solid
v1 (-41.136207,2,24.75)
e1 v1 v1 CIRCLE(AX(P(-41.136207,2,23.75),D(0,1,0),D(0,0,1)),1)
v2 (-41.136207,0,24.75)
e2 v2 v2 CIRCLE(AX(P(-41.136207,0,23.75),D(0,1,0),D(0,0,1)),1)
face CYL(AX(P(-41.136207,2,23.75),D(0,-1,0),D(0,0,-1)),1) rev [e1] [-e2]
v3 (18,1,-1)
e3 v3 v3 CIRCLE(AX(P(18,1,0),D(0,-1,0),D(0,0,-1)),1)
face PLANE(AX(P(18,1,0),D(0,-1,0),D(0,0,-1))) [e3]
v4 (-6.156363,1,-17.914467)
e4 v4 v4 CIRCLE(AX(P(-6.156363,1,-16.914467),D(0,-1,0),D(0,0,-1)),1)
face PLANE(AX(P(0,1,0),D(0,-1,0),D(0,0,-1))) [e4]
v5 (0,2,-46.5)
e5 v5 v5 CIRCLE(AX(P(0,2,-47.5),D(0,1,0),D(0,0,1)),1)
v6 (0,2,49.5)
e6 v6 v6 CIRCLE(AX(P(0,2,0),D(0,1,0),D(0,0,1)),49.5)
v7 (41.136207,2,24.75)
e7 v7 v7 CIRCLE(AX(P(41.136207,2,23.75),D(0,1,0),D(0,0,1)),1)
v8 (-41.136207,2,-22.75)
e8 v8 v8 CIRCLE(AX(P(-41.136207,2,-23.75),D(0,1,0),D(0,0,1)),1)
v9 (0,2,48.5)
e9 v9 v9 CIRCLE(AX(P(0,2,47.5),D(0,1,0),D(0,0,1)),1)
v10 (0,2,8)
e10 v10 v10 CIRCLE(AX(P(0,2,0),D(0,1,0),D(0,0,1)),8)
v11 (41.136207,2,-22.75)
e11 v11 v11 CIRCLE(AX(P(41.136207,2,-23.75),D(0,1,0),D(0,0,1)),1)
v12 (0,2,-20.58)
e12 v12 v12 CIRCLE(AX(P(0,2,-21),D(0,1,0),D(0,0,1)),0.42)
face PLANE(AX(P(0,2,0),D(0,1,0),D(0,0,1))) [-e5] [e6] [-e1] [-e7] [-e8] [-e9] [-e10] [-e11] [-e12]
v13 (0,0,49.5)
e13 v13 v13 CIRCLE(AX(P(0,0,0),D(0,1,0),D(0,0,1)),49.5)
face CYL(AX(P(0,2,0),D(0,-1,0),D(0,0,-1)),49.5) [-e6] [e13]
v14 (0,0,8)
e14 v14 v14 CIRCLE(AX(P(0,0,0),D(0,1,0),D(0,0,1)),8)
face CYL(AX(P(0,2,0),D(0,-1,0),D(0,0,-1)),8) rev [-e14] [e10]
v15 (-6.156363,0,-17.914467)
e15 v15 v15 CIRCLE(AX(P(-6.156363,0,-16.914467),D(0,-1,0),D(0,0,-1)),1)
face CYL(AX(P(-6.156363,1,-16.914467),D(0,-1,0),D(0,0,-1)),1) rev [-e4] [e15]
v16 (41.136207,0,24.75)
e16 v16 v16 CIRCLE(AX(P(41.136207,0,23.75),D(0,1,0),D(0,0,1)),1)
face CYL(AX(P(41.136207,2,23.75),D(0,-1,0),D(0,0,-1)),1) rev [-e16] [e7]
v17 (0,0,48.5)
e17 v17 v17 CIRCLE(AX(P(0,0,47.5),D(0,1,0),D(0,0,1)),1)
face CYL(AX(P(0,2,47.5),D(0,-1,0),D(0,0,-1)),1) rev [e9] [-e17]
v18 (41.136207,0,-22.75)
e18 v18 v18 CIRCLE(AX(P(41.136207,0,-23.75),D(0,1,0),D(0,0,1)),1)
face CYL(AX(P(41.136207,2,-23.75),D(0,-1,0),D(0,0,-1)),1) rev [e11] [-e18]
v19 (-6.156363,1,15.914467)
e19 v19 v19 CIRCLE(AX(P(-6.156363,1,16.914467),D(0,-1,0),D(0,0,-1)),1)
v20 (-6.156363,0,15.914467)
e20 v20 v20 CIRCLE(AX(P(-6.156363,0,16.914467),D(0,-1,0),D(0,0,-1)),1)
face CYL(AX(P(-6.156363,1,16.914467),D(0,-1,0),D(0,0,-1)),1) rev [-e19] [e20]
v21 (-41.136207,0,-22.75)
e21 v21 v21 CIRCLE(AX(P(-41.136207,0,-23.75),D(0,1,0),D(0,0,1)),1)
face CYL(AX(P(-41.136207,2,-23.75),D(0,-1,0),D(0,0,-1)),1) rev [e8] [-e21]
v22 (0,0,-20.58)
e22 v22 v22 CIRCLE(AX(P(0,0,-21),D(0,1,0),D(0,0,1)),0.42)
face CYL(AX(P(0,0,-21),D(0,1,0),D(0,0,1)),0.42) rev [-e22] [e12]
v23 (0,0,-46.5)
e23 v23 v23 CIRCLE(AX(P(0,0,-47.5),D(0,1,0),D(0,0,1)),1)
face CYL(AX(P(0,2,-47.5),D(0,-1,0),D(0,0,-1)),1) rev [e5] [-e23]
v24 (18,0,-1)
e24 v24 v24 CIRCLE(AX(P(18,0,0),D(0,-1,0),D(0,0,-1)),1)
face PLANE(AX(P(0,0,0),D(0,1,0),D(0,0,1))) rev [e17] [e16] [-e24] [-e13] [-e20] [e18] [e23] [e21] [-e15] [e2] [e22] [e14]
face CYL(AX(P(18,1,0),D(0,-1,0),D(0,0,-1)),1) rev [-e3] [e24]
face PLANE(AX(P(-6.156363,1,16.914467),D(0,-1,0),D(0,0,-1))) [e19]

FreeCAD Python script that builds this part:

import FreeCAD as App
import Part
import Sketcher

V = App.Vector

doc = App.newDocument("Part")
body = doc.addObject("PartDesign::Body", "Body")

sketch1 = doc.addObject("Sketcher::SketchObject", "Sketch")
body.addObject(sketch1)
sketch1.AttachmentSupport = (doc.XZ_Plane, [""])
sketch1.MapMode = "FlatFace"
sketch1.addGeometry(Part.Circle(V(0, 0, 0), V(0, 0, 1), 49.5), False)
sketch1.addGeometry(Part.Circle(V(-41.1, -23.8, 0), V(0, 0, 1), 1), False)
sketch1.addGeometry(Part.Circle(V(0, -47.5, 0), V(0, 0, 1), 1), False)
sketch1.addGeometry(Part.Circle(V(-41.1, 23.8, 0), V(0, 0, 1), 1), False)
sketch1.addGeometry(Part.Circle(V(0, 0, 0), V(0, 0, 1), 8), False)
sketch1.addGeometry(Part.Circle(V(41.1, -23.8, 0), V(0, 0, 1), 1), False)
sketch1.addGeometry(Part.Circle(V(0, 47.5, 0), V(0, 0, 1), 1), False)
sketch1.addGeometry(Part.Circle(V(41.1, 23.8, 0), V(0, 0, 1), 1), False)
sketch1.addConstraint(Sketcher.Constraint("Coincident", 0, 3, -1, 1))
sketch1.addConstraint(Sketcher.Constraint("Coincident", 4, 3, -1, 1))
sketch1.addConstraint(Sketcher.Constraint("Equal", 1, 2))
sketch1.addConstraint(Sketcher.Constraint("Equal", 2, 3))
sketch1.addConstraint(Sketcher.Constraint("Equal", 3, 5))
sketch1.addConstraint(Sketcher.Constraint("Equal", 5, 6))
sketch1.addConstraint(Sketcher.Constraint("Equal", 6, 7))
sketch1.addConstraint(Sketcher.Constraint("Symmetric", 3, 3, 5, 3, -1, 1))
sketch1.addConstraint(Sketcher.Constraint("Symmetric", 2, 3, 6, 3, -1, 1))
sketch1.addConstraint(Sketcher.Constraint("Symmetric", 1, 3, 7, 3, -1, 1))
sketch1.addConstraint(Sketcher.Constraint("Symmetric", 1, 3, 5, 3, -2))
sketch1.addConstraint(Sketcher.Constraint("PointOnObject", 2, 3, -2))
sketch1.addConstraint(Sketcher.Constraint("Diameter", 0, 99.0))
sketch1.addConstraint(Sketcher.Constraint("Diameter", 1, 2.0))
sketch1.addConstraint(Sketcher.Constraint("Diameter", 4, 16.0))
sketch1.addConstraint(Sketcher.Constraint("DistanceY", 2, 3, -1, 1, 47.5))
sketch1.addConstraint(Sketcher.Constraint("DistanceY", 1, 3, 3, 3, 47.5))
sketch1.addConstraint(Sketcher.Constraint("DistanceX", 1, 3, -1, 1, 41.136207))
pad1 = doc.addObject("PartDesign::Pad", "Pad")
body.addObject(pad1)
pad1.Profile = sketch1
pad1.Length = 2
pad1.Reversed = True

sketch2 = doc.addObject("Sketcher::SketchObject", "Sketch001")
body.addObject(sketch2)
sketch2.AttachmentSupport = (doc.XZ_Plane, [""])
sketch2.MapMode = "FlatFace"
sketch2.AttachmentOffset = App.Placement(V(0, 0, -2), App.Rotation())
sketch2.addGeometry(Part.Circle(V(0, -21, 0), V(0, 0, 1), 0.42), False)
sketch2.addConstraint(Sketcher.Constraint("PointOnObject", 0, 3, -2))
sketch2.addConstraint(Sketcher.Constraint("Diameter", 0, 0.84))
sketch2.addConstraint(Sketcher.Constraint("DistanceY", 0, 3, -1, 1, 21.0))
pocket1 = doc.addObject("PartDesign::Pocket", "Pocket")
body.addObject(pocket1)
pocket1.Profile = sketch2
pocket1.Type = "ThroughAll"
pocket1.Midplane = True

sketch3 = doc.addObject("Sketcher::SketchObject", "Sketch002")
body.addObject(sketch3)
sketch3.AttachmentSupport = (doc.XZ_Plane, [""])
sketch3.MapMode = "FlatFace"
sketch3.addGeometry(Part.Circle(V(-6.2, 16.9, 0), V(0, 0, 1), 1), False)
sketch3.addGeometry(Part.Circle(V(-6.2, -16.9, 0), V(0, 0, 1), 1), False)
sketch3.addGeometry(Part.Circle(V(18, 0, 0), V(0, 0, 1), 1), False)
sketch3.addConstraint(Sketcher.Constraint("Equal", 0, 1))
sketch3.addConstraint(Sketcher.Constraint("Equal", 1, 2))
sketch3.addConstraint(Sketcher.Constraint("Symmetric", 0, 3, 1, 3, -1))
sketch3.addConstraint(Sketcher.Constraint("PointOnObject", 2, 3, -1))
sketch3.addConstraint(Sketcher.Constraint("Diameter", 0, 2.0))
sketch3.addConstraint(Sketcher.Constraint("DistanceX", -1, 1, 2, 3, 18.0))
sketch3.addConstraint(Sketcher.Constraint("DistanceX", 0, 3, -1, 1, 6.156363))
sketch3.addConstraint(Sketcher.Constraint("DistanceY", -1, 1, 0, 3, 16.914467))
pocket2 = doc.addObject("PartDesign::Pocket", "Pocket001")
body.addObject(pocket2)
pocket2.Profile = sketch3
pocket2.Length = 1

doc.recompute()
